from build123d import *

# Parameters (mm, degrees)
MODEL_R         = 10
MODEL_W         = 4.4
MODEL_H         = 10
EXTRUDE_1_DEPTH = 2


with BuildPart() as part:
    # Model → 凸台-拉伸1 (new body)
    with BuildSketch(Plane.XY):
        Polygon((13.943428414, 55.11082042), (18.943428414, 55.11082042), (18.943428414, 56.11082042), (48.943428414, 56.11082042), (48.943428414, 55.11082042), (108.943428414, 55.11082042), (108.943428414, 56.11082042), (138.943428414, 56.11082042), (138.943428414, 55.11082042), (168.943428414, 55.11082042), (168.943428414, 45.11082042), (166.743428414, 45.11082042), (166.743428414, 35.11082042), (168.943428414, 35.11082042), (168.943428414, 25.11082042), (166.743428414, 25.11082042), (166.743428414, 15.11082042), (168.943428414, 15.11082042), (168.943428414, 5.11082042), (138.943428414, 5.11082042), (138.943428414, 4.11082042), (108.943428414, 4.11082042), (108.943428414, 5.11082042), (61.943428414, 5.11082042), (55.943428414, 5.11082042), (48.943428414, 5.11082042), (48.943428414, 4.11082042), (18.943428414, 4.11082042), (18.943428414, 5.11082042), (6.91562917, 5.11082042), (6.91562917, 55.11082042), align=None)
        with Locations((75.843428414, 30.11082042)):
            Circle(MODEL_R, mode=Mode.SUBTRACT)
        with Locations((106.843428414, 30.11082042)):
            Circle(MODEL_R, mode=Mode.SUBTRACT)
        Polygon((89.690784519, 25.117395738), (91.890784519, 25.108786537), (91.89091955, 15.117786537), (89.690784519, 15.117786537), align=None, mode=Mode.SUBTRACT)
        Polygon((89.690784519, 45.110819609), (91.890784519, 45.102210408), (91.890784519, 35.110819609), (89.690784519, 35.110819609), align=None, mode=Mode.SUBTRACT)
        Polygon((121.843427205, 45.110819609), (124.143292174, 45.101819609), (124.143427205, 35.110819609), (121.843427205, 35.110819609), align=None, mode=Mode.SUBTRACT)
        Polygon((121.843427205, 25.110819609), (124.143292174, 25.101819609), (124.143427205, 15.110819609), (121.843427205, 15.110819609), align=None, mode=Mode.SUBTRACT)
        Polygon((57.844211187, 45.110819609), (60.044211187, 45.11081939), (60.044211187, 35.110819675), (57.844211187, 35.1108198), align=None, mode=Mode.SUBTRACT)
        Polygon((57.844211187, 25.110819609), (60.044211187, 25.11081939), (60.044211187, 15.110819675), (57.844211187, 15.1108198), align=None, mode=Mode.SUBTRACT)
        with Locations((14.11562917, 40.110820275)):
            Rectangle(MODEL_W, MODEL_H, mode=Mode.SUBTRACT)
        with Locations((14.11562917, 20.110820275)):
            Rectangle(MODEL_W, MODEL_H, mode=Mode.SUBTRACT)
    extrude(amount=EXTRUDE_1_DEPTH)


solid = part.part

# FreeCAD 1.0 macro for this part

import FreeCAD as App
import Part
import Sketcher
from FreeCAD import Vector

doc = App.newDocument("Part")
body = doc.addObject("PartDesign::Body", "Body")

sketch1 = body.newObject("Sketcher::SketchObject", "Sketch")
sketch1.AttachmentSupport = (doc.getObject("XY_Plane"), [""])
sketch1.MapMode = "FlatFace"
sketch1.addGeometry(Part.LineSegment(Vector(18.9, 55.1, 0), Vector(6.9, 55.1, 0)), False)
sketch1.addGeometry(Part.LineSegment(Vector(6.9, 55.1, 0), Vector(6.9, 5.1, 0)), False)
sketch1.addGeometry(Part.LineSegment(Vector(6.9, 5.1, 0), Vector(18.9, 5.1, 0)), False)
sketch1.addGeometry(Part.LineSegment(Vector(18.9, 5.1, 0), Vector(18.9, 4.1, 0)), False)
sketch1.addGeometry(Part.LineSegment(Vector(18.9, 4.1, 0), Vector(48.9, 4.1, 0)), False)
sketch1.addGeometry(Part.LineSegment(Vector(48.9, 4.1, 0), Vector(48.9, 5.1, 0)), False)
sketch1.addGeometry(Part.LineSegment(Vector(48.9, 5.1, 0), Vector(108.9, 5.1, 0)), False)
sketch1.addGeometry(Part.LineSegment(Vector(108.9, 5.1, 0), Vector(108.9, 4.1, 0)), False)
sketch1.addGeometry(Part.LineSegment(Vector(108.9, 4.1, 0), Vector(138.9, 4.1, 0)), False)
sketch1.addGeometry(Part.LineSegment(Vector(138.9, 4.1, 0), Vector(138.9, 5.1, 0)), False)
sketch1.addGeometry(Part.LineSegment(Vector(138.9, 5.1, 0), Vector(168.9, 5.1, 0)), False)
sketch1.addGeometry(Part.LineSegment(Vector(168.9, 5.1, 0), Vector(168.9, 15.1, 0)), False)
sketch1.addGeometry(Part.LineSegment(Vector(168.9, 15.1, 0), Vector(166.7, 15.1, 0)), False)
sketch1.addGeometry(Part.LineSegment(Vector(166.7, 15.1, 0), Vector(166.7, 25.1, 0)), False)
sketch1.addGeometry(Part.LineSegment(Vector(166.7, 25.1, 0), Vector(168.9, 25.1, 0)), False)
sketch1.addGeometry(Part.LineSegment(Vector(168.9, 25.1, 0), Vector(168.9, 35.1, 0)), False)
sketch1.addGeometry(Part.LineSegment(Vector(168.9, 35.1, 0), Vector(166.7, 35.1, 0)), False)
sketch1.addGeometry(Part.LineSegment(Vector(166.7, 35.1, 0), Vector(166.7, 45.1, 0)), False)
sketch1.addGeometry(Part.LineSegment(Vector(166.7, 45.1, 0), Vector(168.9, 45.1, 0)), False)
sketch1.addGeometry(Part.LineSegment(Vector(168.9, 45.1, 0), Vector(168.9, 55.1, 0)), False)
sketch1.addGeometry(Part.LineSegment(Vector(168.9, 55.1, 0), Vector(138.9, 55.1, 0)), False)
sketch1.addGeometry(Part.LineSegment(Vector(138.9, 55.1, 0), Vector(138.9, 56.1, 0)), False)
sketch1.addGeometry(Part.LineSegment(Vector(138.9, 56.1, 0), Vector(108.9, 56.1, 0)), False)
sketch1.addGeometry(Part.LineSegment(Vector(108.9, 56.1, 0), Vector(108.9, 55.1, 0)), False)
sketch1.addGeometry(Part.LineSegment(Vector(108.9, 55.1, 0), Vector(48.9, 55.1, 0)), False)
sketch1.addGeometry(Part.LineSegment(Vector(48.9, 55.1, 0), Vector(48.9, 56.1, 0)), False)
sketch1.addGeometry(Part.LineSegment(Vector(48.9, 56.1, 0), Vector(18.9, 56.1, 0)), False)
sketch1.addGeometry(Part.LineSegment(Vector(18.9, 56.1, 0), Vector(18.9, 55.1, 0)), False)
sketch1.addGeometry(Part.LineSegment(Vector(121.8, 25.1, 0), Vector(124.1, 25.1, 0)), False)
sketch1.addGeometry(Part.LineSegment(Vector(124.1, 25.1, 0), Vector(124.1, 15.1, 0)), False)
sketch1.addGeometry(Part.LineSegment(Vector(124.1, 15.1, 0), Vector(121.8, 15.1, 0)), False)
sketch1.addGeometry(Part.LineSegment(Vector(121.8, 15.1, 0), Vector(121.8, 25.1, 0)), False)
sketch1.addGeometry(Part.LineSegment(Vector(89.7, 25.1, 0), Vector(91.9, 25.1, 0)), False)
sketch1.addGeometry(Part.LineSegment(Vector(91.9, 25.1, 0), Vector(91.9, 15.1, 0)), False)
sketch1.addGeometry(Part.LineSegment(Vector(91.9, 15.1, 0), Vector(89.7, 15.1, 0)), False)
sketch1.addGeometry(Part.LineSegment(Vector(89.7, 15.1, 0), Vector(89.7, 25.1, 0)), False)
sketch1.addGeometry(Part.LineSegment(Vector(57.8, 25.1, 0), Vector(60, 25.1, 0)), False)
sketch1.addGeometry(Part.LineSegment(Vector(60, 25.1, 0), Vector(60, 15.1, 0)), False)
sketch1.addGeometry(Part.LineSegment(Vector(60, 15.1, 0), Vector(57.8, 15.1, 0)), False)
sketch1.addGeometry(Part.LineSegment(Vector(57.8, 15.1, 0), Vector(57.8, 25.1, 0)), False)
sketch1.addGeometry(Part.LineSegment(Vector(11.9, 15.1, 0), Vector(11.9, 25.1, 0)), False)
sketch1.addGeometry(Part.LineSegment(Vector(11.9, 25.1, 0), Vector(16.3, 25.1, 0)), False)
sketch1.addGeometry(Part.LineSegment(Vector(16.3, 25.1, 0), Vector(16.3, 15.1, 0)), False)
sketch1.addGeometry(Part.LineSegment(Vector(16.3, 15.1, 0), Vector(11.9, 15.1, 0)), False)
sketch1.addGeometry(Part.Circle(Vector(106.8, 30.1, 0), Vector(0, 0, 1), 10), False)
sketch1.addGeometry(Part.Circle(Vector(75.8, 30.1, 0), Vector(0, 0, 1), 10), False)
sketch1.addGeometry(Part.LineSegment(Vector(121.8, 45.1, 0), Vector(124.1, 45.1, 0)), False)
sketch1.addGeometry(Part.LineSegment(Vector(124.1, 45.1, 0), Vector(124.1, 35.1, 0)), False)
sketch1.addGeometry(Part.LineSegment(Vector(124.1, 35.1, 0), Vector(121.8, 35.1, 0)), False)
sketch1.addGeometry(Part.LineSegment(Vector(121.8, 35.1, 0), Vector(121.8, 45.1, 0)), False)
sketch1.addGeometry(Part.LineSegment(Vector(89.7, 45.1, 0), Vector(91.9, 45.1, 0)), False)
sketch1.addGeometry(Part.LineSegment(Vector(91.9, 45.1, 0), Vector(91.9, 35.1, 0)), False)
sketch1.addGeometry(Part.LineSegment(Vector(91.9, 35.1, 0), Vector(89.7, 35.1, 0)), False)
sketch1.addGeometry(Part.LineSegment(Vector(89.7, 35.1, 0), Vector(89.7, 45.1, 0)), False)
sketch1.addGeometry(Part.LineSegment(Vector(57.8, 45.1, 0), Vector(60, 45.1, 0)), False)
sketch1.addGeometry(Part.LineSegment(Vector(60, 45.1, 0), Vector(60, 35.1, 0)), False)
sketch1.addGeometry(Part.LineSegment(Vector(60, 35.1, 0), Vector(57.8, 35.1, 0)), False)
sketch1.addGeometry(Part.LineSegment(Vector(57.8, 35.1, 0), Vector(57.8, 45.1, 0)), False)
sketch1.addGeometry(Part.LineSegment(Vector(11.9, 35.1, 0), Vector(11.9, 45.1, 0)), False)
sketch1.addGeometry(Part.LineSegment(Vector(11.9, 45.1, 0), Vector(16.3, 45.1, 0)), False)
sketch1.addGeometry(Part.LineSegment(Vector(16.3, 45.1, 0), Vector(16.3, 35.1, 0)), False)
sketch1.addGeometry(Part.LineSegment(Vector(16.3, 35.1, 0), Vector(11.9, 35.1, 0)), False)
sketch1.addConstraint(Sketcher.Constraint("Coincident", 0, 2, 1, 1))
sketch1.addConstraint(Sketcher.Constraint("Coincident", 1, 2, 2, 1))
sketch1.addConstraint(Sketcher.Constraint("Coincident", 2, 2, 3, 1))
sketch1.addConstraint(Sketcher.Constraint("Coincident", 3, 2, 4, 1))
sketch1.addConstraint(Sketcher.Constraint("Coincident", 4, 2, 5, 1))
sketch1.addConstraint(Sketcher.Constraint("Coincident", 5, 2, 6, 1))
sketch1.addConstraint(Sketcher.Constraint("Coincident", 6, 2, 7, 1))
sketch1.addConstraint(Sketcher.Constraint("Coincident", 7, 2, 8, 1))
sketch1.addConstraint(Sketcher.Constraint("Coincident", 8, 2, 9, 1))
sketch1.addConstraint(Sketcher.Constraint("Coincident", 9, 2, 10, 1))
sketch1.addConstraint(Sketcher.Constraint("Coincident", 10, 2, 11, 1))
sketch1.addConstraint(Sketcher.Constraint("Coincident", 11, 2, 12, 1))
sketch1.addConstraint(Sketcher.Constraint("Coincident", 12, 2, 13, 1))
sketch1.addConstraint(Sketcher.Constraint("Coincident", 13, 2, 14, 1))
sketch1.addConstraint(Sketcher.Constraint("Coincident", 14, 2, 15, 1))
sketch1.addConstraint(Sketcher.Constraint("Coincident", 15, 2, 16, 1))
sketch1.addConstraint(Sketcher.Constraint("Coincident", 16, 2, 17, 1))
sketch1.addConstraint(Sketcher.Constraint("Coincident", 17, 2, 18, 1))
sketch1.addConstraint(Sketcher.Constraint("Coincident", 18, 2, 19, 1))
sketch1.addConstraint(Sketcher.Constraint("Coincident", 19, 2, 20, 1))
sketch1.addConstraint(Sketcher.Constraint("Coincident", 20, 2, 21, 1))
sketch1.addConstraint(Sketcher.Constraint("Coincident", 21, 2, 22, 1))
sketch1.addConstraint(Sketcher.Constraint("Coincident", 22, 2, 23, 1))
sketch1.addConstraint(Sketcher.Constraint("Coincident", 23, 2, 24, 1))
sketch1.addConstraint(Sketcher.Constraint("Coincident", 24, 2, 25, 1))
sketch1.addConstraint(Sketcher.Constraint("Coincident", 25, 2, 26, 1))
sketch1.addConstraint(Sketcher.Constraint("Coincident", 26, 2, 27, 1))
sketch1.addConstraint(Sketcher.Constraint("Coincident", 27, 2, 0, 1))
sketch1.addConstraint(Sketcher.Constraint("Coincident", 28, 2, 29, 1))
sketch1.addConstraint(Sketcher.Constraint("Coincident", 29, 2, 30, 1))
sketch1.addConstraint(Sketcher.Constraint("Coincident", 30, 2, 31, 1))
sketch1.addConstraint(Sketcher.Constraint("Coincident", 31, 2, 28, 1))
sketch1.addConstraint(Sketcher.Constraint("Coincident", 32, 2, 33, 1))
sketch1.addConstraint(Sketcher.Constraint("Coincident", 33, 2, 34, 1))
sketch1.addConstraint(Sketcher.Constraint("Coincident", 34, 2, 35, 1))
sketch1.addConstraint(Sketcher.Constraint("Coincident", 35, 2, 32, 1))
sketch1.addConstraint(Sketcher.Constraint("Coincident", 36, 2, 37, 1))
sketch1.addConstraint(Sketcher.Constraint("Coincident", 37, 2, 38, 1))
sketch1.addConstraint(Sketcher.Constraint("Coincident", 38, 2, 39, 1))
sketch1.addConstraint(Sketcher.Constraint("Coincident", 39, 2, 36, 1))
sketch1.addConstraint(Sketcher.Constraint("Coincident", 40, 2, 41, 1))
sketch1.addConstraint(Sketcher.Constraint("Coincident", 41, 2, 42, 1))
sketch1.addConstraint(Sketcher.Constraint("Coincident", 42, 2, 43, 1))
sketch1.addConstraint(Sketcher.Constraint("Coincident", 43, 2, 40, 1))
sketch1.addConstraint(Sketcher.Constraint("Coincident", 46, 2, 47, 1))
sketch1.addConstraint(Sketcher.Constraint("Coincident", 47, 2, 48, 1))
sketch1.addConstraint(Sketcher.Constraint("Coincident", 48, 2, 49, 1))
sketch1.addConstraint(Sketcher.Constraint("Coincident", 49, 2, 46, 1))
sketch1.addConstraint(Sketcher.Constraint("Coincident", 50, 2, 51, 1))
sketch1.addConstraint(Sketcher.Constraint("Coincident", 51, 2, 52, 1))
sketch1.addConstraint(Sketcher.Constraint("Coincident", 52, 2, 53, 1))
sketch1.addConstraint(Sketcher.Constraint("Coincident", 53, 2, 50, 1))
sketch1.addConstraint(Sketcher.Constraint("Coincident", 54, 2, 55, 1))
sketch1.addConstraint(Sketcher.Constraint("Coincident", 55, 2, 56, 1))
sketch1.addConstraint(Sketcher.Constraint("Coincident", 56, 2, 57, 1))
sketch1.addConstraint(Sketcher.Constraint("Coincident", 57, 2, 54, 1))
sketch1.addConstraint(Sketcher.Constraint("Coincident", 58, 2, 59, 1))
sketch1.addConstraint(Sketcher.Constraint("Coincident", 59, 2, 60, 1))
sketch1.addConstraint(Sketcher.Constraint("Coincident", 60, 2, 61, 1))
sketch1.addConstraint(Sketcher.Constraint("Coincident", 61, 2, 58, 1))
sketch1.addConstraint(Sketcher.Constraint("Horizontal", 0))
sketch1.addConstraint(Sketcher.Constraint("Vertical", 1))
sketch1.addConstraint(Sketcher.Constraint("Horizontal", 2))
sketch1.addConstraint(Sketcher.Constraint("Vertical", 3))
sketch1.addConstraint(Sketcher.Constraint("Horizontal", 4))
sketch1.addConstraint(Sketcher.Constraint("Vertical", 5))
sketch1.addConstraint(Sketcher.Constraint("Horizontal", 6))
sketch1.addConstraint(Sketcher.Constraint("Vertical", 7))
sketch1.addConstraint(Sketcher.Constraint("Horizontal", 8))
sketch1.addConstraint(Sketcher.Constraint("Vertical", 9))
sketch1.addConstraint(Sketcher.Constraint("Horizontal", 10))
sketch1.addConstraint(Sketcher.Constraint("Vertical", 11))
sketch1.addConstraint(Sketcher.Constraint("Horizontal", 12))
sketch1.addConstraint(Sketcher.Constraint("Vertical", 13))
sketch1.addConstraint(Sketcher.Constraint("Horizontal", 14))
sketch1.addConstraint(Sketcher.Constraint("Vertical", 15))
sketch1.addConstraint(Sketcher.Constraint("Horizontal", 16))
sketch1.addConstraint(Sketcher.Constraint("Vertical", 17))
sketch1.addConstraint(Sketcher.Constraint("Horizontal", 18))
sketch1.addConstraint(Sketcher.Constraint("Vertical", 19))
sketch1.addConstraint(Sketcher.Constraint("Horizontal", 20))
sketch1.addConstraint(Sketcher.Constraint("Vertical", 21))
sketch1.addConstraint(Sketcher.Constraint("Horizontal", 22))
sketch1.addConstraint(Sketcher.Constraint("Vertical", 23))
sketch1.addConstraint(Sketcher.Constraint("Horizontal", 24))
sketch1.addConstraint(Sketcher.Constraint("Vertical", 25))
sketch1.addConstraint(Sketcher.Constraint("Horizontal", 26))
sketch1.addConstraint(Sketcher.Constraint("Vertical", 27))
sketch1.addConstraint(Sketcher.Constraint("Horizontal", 30))
sketch1.addConstraint(Sketcher.Constraint("Vertical", 31))
sketch1.addConstraint(Sketcher.Constraint("Horizontal", 34))
sketch1.addConstraint(Sketcher.Constraint("Vertical", 35))
sketch1.addConstraint(Sketcher.Constraint("Horizontal", 36))
sketch1.addConstraint(Sketcher.Constraint("Vertical", 37))
sketch1.addConstraint(Sketcher.Constraint("Horizontal", 38))
sketch1.addConstraint(Sketcher.Constraint("Vertical", 39))
sketch1.addConstraint(Sketcher.Constraint("Vertical", 40))
sketch1.addConstraint(Sketcher.Constraint("Horizontal", 41))
sketch1.addConstraint(Sketcher.Constraint("Vertical", 42))
sketch1.addConstraint(Sketcher.Constraint("Horizontal", 43))
sketch1.addConstraint(Sketcher.Constraint("Horizontal", 48))
sketch1.addConstraint(Sketcher.Constraint("Vertical", 49))
sketch1.addConstraint(Sketcher.Constraint("Vertical", 51))
sketch1.addConstraint(Sketcher.Constraint("Horizontal", 52))
sketch1.addConstraint(Sketcher.Constraint("Vertical", 53))
sketch1.addConstraint(Sketcher.Constraint("Horizontal", 54))
sketch1.addConstraint(Sketcher.Constraint("Vertical", 55))
sketch1.addConstraint(Sketcher.Constraint("Horizontal", 56))
sketch1.addConstraint(Sketcher.Constraint("Vertical", 57))
sketch1.addConstraint(Sketcher.Constraint("Vertical", 58))
sketch1.addConstraint(Sketcher.Constraint("Horizontal", 59))
sketch1.addConstraint(Sketcher.Constraint("Vertical", 60))
sketch1.addConstraint(Sketcher.Constraint("Horizontal", 61))
sketch1.addConstraint(Sketcher.Constraint("Equal", 44, 45))
sketch1.addConstraint(Sketcher.Constraint("Parallel", 28, 32))
sketch1.addConstraint(Sketcher.Constraint("Parallel", 29, 33))
sketch1.addConstraint(Sketcher.Constraint("Parallel", 32, 46))
sketch1.addConstraint(Sketcher.Constraint("Parallel", 33, 47))
sketch1.addConstraint(Sketcher.Constraint("Parallel", 46, 50))
sketch1.addConstraint(Sketcher.Constraint("Horizontal", 44, 3, 45, 3))
sketch1.addConstraint(Sketcher.Constraint("Horizontal", 2, 2, 5, 2))
sketch1.addConstraint(Sketcher.Constraint("Horizontal", 4, 2, 7, 2))
sketch1.addConstraint(Sketcher.Constraint("Horizontal", 6, 2, 9, 2))
sketch1.addConstraint(Sketcher.Constraint("Horizontal", 0, 2, 19, 2))
sketch1.addConstraint(Sketcher.Constraint("Horizontal", 20, 2, 23, 2))
sketch1.addConstraint(Sketcher.Constraint("Horizontal", 22, 2, 25, 2))
sketch1.addConstraint(Sketcher.Constraint("Horizontal", 12, 2, 29, 2))
sketch1.addConstraint(Sketcher.Constraint("Horizontal", 14, 2, 31, 2))
sketch1.addConstraint(Sketcher.Constraint("Horizontal", 31, 2, 36, 2))
sketch1.addConstraint(Sketcher.Constraint("Horizontal", 30, 2, 37, 2))
sketch1.addConstraint(Sketcher.Constraint("Horizontal", 39, 2, 40, 2))
sketch1.addConstraint(Sketcher.Constraint("Horizontal", 38, 2, 42, 2))
sketch1.addConstraint(Sketcher.Constraint("Horizontal", 16, 2, 47, 2))
sketch1.addConstraint(Sketcher.Constraint("Horizontal", 18, 2, 49, 2))
sketch1.addConstraint(Sketcher.Constraint("Horizontal", 48, 2, 51, 2))
sketch1.addConstraint(Sketcher.Constraint("Horizontal", 49, 2, 53, 2))
sketch1.addConstraint(Sketcher.Constraint("Horizontal", 53, 2, 54, 2))
sketch1.addConstraint(Sketcher.Constraint("Horizontal", 52, 2, 55, 2))
sketch1.addConstraint(Sketcher.Constraint("Horizontal", 57, 2, 58, 2))
sketch1.addConstraint(Sketcher.Constraint("Horizontal", 56, 2, 60, 2))
sketch1.addConstraint(Sketcher.Constraint("Vertical", 11, 2, 14, 2))
sketch1.addConstraint(Sketcher.Constraint("Vertical", 13, 2, 16, 2))
sketch1.addConstraint(Sketcher.Constraint("Vertical", 15, 2, 18, 2))
sketch1.addConstraint(Sketcher.Constraint("Vertical", 9, 2, 20, 2))
sketch1.addConstraint(Sketcher.Constraint("Vertical", 7, 2, 22, 2))
sketch1.addConstraint(Sketcher.Constraint("Vertical", 5, 2, 24, 2))
sketch1.addConstraint(Sketcher.Constraint("Vertical", 3, 2, 26, 2))
sketch1.addConstraint(Sketcher.Constraint("Vertical", 28, 2, 46, 2))
sketch1.addConstraint(Sketcher.Constraint("Vertical", 31, 2, 48, 2))
sketch1.addConstraint(Sketcher.Constraint("Vertical", 32, 2, 50, 2))
sketch1.addConstraint(Sketcher.Constraint("Vertical", 35, 2, 52, 2))
sketch1.addConstraint(Sketcher.Constraint("Vertical", 37, 2, 54, 2))
sketch1.addConstraint(Sketcher.Constraint("Vertical", 39, 2, 56, 2))
sketch1.addConstraint(Sketcher.Constraint("Vertical", 43, 2, 58, 2))
sketch1.addConstraint(Sketcher.Constraint("Vertical", 42, 2, 59, 2))
sketch1.addConstraint(Sketcher.Constraint("Equal", 4, 8))
sketch1.addConstraint(Sketcher.Constraint("Equal", 8, 10))
sketch1.addConstraint(Sketcher.Constraint("Equal", 18, 36))
sketch1.addConstraint(Sketcher.Constraint("Equal", 38, 52))
sketch1.addConstraint(Sketcher.Constraint("Equal", 11, 13))
sketch1.addConstraint(Sketcher.Constraint("Equal", 13, 15))
sketch1.addConstraint(Sketcher.Constraint("Equal", 15, 17))
sketch1.addConstraint(Sketcher.Constraint("Equal", 17, 19))
sketch1.addConstraint(Sketcher.Constraint("Equal", 9, 21))
sketch1.addConstraint(Sketcher.Constraint("Equal", 29, 33))
sketch1.addConstraint(Sketcher.Constraint("Diameter", 44, 20.0))
sketch1.addConstraint(Sketcher.Constraint("DistanceX", 4, 1, 4, 2, 30.0))
sketch1.addConstraint(Sketcher.Constraint("DistanceX", 6, 1, 6, 2, 60.0))
sketch1.addConstraint(Sketcher.Constraint("DistanceY", 1, 2, 1, 1, 50.0))
sketch1.addConstraint(Sketcher.Constraint("DistanceY", 3, 2, 3, 1, 1.0))
sketch1.addConstraint(Sketcher.Constraint("DistanceX", 12, 2, 12, 1, 2.2))
sketch1.addConstraint(Sketcher.Constraint("DistanceX", 30, 2, 30, 1, 2.3))
sketch1.addConstraint(Sketcher.Constraint("DistanceX", 41, 1, 41, 2, 4.4))
sketch1.addConstraint(Sketcher.Constraint("Distance", 29, 9.991))
sketch1.addConstraint(Sketcher.Constraint("DistanceX", 0, 2, 0, 1, 12.027799))
sketch1.addConstraint(Sketcher.Constraint("DistanceX", 34, 2, 34, 1, 2.200135))
sketch1.addConstraint(Sketcher.Constraint("DistanceX", -1, 1, 44, 3, 106.843428))
sketch1.addConstraint(Sketcher.Constraint("DistanceY", -1, 1, 44, 3, 30.11082))
sketch1.addConstraint(Sketcher.Constraint("DistanceX", -1, 1, 45, 3, 75.843428))
sketch1.addConstraint(Sketcher.Constraint("DistanceX", -1, 1, 0, 2, 6.915629))
sketch1.addConstraint(Sketcher.Constraint("DistanceY", -1, 1, 0, 2, 55.11082))
sketch1.addConstraint(Sketcher.Constraint("DistanceX", -1, 1, 33, 2, 91.89092))
sketch1.addConstraint(Sketcher.Constraint("DistanceX", -1, 1, 36, 2, 60.044211))
sketch1.addConstraint(Sketcher.Constraint("DistanceX", -1, 1, 40, 2, 11.915629))
sketch1.addConstraint(Sketcher.Constraint("DistanceX", -1, 1, 28, 2, 124.143292))
sketch1.addConstraint(Sketcher.Constraint("DistanceY", -1, 1, 32, 2, 25.108787))
pad1 = body.newObject("PartDesign::Pad", "Pad")
pad1.Profile = sketch1
pad1.Length = 2

doc.recompute()
